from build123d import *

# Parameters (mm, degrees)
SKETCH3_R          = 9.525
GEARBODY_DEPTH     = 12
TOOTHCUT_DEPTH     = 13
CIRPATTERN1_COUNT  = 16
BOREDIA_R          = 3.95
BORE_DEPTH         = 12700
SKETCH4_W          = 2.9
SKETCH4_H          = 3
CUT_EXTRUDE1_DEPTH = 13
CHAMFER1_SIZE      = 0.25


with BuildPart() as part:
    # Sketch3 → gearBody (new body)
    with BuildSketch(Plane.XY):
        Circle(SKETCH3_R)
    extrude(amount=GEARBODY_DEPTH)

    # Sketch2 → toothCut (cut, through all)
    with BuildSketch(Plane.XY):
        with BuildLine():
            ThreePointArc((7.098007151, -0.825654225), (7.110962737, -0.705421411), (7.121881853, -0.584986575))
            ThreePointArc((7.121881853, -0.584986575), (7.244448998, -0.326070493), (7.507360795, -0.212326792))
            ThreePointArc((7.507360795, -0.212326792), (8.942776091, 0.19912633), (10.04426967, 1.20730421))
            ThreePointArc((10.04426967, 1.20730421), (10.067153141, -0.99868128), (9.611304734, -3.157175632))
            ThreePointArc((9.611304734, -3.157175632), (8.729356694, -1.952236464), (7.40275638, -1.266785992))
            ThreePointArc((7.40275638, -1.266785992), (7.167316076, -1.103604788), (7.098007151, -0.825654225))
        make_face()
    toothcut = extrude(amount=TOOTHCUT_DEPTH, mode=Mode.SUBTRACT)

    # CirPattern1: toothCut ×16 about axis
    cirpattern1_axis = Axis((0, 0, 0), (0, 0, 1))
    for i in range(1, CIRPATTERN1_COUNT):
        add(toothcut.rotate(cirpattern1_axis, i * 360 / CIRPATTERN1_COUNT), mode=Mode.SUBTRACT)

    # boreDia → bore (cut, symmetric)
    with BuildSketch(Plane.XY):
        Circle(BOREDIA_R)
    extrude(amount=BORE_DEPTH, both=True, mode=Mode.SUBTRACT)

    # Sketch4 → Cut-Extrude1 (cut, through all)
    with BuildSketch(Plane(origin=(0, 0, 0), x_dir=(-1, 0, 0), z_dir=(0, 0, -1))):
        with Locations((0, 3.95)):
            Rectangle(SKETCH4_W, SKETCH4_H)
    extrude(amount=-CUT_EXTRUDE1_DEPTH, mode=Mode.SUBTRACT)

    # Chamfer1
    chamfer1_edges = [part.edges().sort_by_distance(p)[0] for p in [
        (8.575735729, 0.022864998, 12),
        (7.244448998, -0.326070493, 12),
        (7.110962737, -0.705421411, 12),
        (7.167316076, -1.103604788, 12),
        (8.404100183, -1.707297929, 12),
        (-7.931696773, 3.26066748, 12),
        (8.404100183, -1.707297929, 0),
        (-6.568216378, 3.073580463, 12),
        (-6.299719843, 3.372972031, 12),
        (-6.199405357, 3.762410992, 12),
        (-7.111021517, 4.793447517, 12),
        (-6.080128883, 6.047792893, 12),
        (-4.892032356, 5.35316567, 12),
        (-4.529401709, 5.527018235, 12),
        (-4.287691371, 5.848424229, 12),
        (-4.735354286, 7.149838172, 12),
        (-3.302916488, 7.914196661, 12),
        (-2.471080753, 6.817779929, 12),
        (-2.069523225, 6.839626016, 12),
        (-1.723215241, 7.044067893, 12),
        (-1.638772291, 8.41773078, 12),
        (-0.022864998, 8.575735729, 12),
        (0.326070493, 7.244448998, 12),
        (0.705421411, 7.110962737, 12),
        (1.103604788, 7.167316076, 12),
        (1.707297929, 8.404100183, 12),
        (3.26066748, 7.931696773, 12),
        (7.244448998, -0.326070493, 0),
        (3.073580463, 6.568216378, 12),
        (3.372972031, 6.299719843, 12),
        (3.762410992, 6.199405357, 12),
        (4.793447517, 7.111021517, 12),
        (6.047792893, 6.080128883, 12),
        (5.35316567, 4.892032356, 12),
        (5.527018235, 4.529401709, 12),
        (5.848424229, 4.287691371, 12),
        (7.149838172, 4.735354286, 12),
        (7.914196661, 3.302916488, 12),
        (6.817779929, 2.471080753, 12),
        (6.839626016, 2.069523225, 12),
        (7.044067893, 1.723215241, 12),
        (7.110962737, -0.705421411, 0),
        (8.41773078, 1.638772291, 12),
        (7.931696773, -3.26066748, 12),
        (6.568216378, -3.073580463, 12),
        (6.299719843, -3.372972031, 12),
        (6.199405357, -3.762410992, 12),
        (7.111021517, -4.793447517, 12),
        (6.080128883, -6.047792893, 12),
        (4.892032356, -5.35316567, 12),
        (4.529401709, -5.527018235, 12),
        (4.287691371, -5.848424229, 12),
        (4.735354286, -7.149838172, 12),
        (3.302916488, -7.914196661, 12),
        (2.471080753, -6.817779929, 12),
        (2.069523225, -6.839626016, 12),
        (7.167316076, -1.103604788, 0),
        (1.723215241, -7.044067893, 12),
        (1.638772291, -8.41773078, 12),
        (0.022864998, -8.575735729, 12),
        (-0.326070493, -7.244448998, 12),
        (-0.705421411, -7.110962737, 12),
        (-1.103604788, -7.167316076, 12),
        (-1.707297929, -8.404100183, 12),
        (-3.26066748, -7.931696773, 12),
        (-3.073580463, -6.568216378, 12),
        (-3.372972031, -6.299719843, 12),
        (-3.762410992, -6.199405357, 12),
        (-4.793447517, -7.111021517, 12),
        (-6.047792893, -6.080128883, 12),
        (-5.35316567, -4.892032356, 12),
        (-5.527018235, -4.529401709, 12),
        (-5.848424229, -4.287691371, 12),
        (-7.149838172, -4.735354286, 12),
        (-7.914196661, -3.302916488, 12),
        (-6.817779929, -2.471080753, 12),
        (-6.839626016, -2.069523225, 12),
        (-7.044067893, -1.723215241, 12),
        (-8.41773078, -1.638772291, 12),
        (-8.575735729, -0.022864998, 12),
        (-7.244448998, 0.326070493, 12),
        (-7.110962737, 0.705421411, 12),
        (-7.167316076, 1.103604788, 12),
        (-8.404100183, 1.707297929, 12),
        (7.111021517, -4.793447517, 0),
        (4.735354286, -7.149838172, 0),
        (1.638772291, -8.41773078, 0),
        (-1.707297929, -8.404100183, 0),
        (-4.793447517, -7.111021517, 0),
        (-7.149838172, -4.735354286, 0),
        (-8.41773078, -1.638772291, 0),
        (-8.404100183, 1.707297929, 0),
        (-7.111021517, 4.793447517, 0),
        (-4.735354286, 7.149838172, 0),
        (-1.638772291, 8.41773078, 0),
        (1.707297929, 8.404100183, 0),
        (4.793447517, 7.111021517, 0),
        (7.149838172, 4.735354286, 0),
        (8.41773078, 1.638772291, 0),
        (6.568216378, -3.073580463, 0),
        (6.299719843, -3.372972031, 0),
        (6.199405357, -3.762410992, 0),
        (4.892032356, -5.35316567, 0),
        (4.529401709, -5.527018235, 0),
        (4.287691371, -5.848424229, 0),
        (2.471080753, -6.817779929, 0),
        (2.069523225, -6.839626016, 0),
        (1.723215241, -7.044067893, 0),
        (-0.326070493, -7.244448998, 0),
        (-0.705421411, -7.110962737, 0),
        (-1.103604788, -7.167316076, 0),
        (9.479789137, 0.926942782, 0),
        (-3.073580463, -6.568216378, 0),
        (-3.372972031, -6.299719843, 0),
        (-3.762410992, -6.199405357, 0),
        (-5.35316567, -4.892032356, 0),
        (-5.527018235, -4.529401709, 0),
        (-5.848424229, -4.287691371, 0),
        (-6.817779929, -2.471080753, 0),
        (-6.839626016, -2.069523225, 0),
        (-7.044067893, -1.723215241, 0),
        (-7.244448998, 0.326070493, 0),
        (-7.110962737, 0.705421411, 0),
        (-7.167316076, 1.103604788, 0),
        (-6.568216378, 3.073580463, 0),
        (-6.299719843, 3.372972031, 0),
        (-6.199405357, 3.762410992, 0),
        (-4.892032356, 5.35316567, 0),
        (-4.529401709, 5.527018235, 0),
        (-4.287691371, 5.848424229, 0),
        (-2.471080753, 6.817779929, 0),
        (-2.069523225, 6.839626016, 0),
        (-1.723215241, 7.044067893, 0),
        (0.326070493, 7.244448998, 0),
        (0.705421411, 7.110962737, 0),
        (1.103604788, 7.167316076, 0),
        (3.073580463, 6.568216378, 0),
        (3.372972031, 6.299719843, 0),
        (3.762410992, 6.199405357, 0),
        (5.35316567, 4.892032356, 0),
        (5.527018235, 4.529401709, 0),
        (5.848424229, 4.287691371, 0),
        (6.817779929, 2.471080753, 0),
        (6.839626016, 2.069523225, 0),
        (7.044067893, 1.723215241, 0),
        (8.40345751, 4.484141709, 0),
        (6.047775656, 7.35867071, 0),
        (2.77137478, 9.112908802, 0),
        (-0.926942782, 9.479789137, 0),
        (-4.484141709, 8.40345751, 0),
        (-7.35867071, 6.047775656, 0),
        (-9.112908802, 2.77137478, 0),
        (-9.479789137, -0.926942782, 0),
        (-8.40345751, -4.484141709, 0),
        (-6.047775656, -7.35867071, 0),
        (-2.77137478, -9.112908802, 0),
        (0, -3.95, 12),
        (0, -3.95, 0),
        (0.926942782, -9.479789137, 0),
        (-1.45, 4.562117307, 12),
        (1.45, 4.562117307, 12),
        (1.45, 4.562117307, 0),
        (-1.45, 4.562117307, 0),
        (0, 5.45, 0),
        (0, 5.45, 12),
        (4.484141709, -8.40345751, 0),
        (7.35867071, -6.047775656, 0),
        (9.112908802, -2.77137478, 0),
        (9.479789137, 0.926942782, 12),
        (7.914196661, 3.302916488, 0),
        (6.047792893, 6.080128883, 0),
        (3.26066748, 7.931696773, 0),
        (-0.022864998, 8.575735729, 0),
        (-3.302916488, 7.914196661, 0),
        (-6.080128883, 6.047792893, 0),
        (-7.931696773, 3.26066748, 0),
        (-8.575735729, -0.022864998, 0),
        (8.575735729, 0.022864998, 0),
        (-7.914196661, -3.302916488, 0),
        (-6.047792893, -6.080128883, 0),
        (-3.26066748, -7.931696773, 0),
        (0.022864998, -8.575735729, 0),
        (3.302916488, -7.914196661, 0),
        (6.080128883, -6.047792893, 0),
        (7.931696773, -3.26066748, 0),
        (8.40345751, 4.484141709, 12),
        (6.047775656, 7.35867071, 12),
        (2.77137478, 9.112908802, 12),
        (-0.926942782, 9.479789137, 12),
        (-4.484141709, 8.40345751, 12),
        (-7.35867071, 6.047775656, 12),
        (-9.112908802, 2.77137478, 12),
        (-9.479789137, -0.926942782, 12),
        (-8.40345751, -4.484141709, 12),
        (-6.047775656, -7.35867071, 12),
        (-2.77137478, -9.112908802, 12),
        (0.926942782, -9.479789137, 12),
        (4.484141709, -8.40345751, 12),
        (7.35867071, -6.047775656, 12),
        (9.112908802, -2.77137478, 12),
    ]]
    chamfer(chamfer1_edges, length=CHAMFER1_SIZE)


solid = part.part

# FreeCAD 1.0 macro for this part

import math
import FreeCAD as App
import Part
import Sketcher


def edges_at(feature, points):
    """Names of the edges that pass closest to the given points."""
    edges = feature.Shape.Edges
    near = lambda p: min(range(len(edges)), key=lambda i: edges[i].distToShape(Part.Vertex(*p))[0])
    return sorted({f"Edge{near(p) + 1}" for p in points})


def add_polygon(sketch, points):
    """Adds a closed chain of lines whose ends are joined by coincident constraints."""
    first, n = sketch.GeometryCount, len(points)
    for a, b in zip(points, points[1:] + points[:1]):
        sketch.addGeometry(Part.LineSegment(App.Vector(*a, 0), App.Vector(*b, 0)), False)
    for i in range(n):
        sketch.addConstraint(Sketcher.Constraint("Coincident", first + i, 2, first + (i + 1) % n, 1))

doc = App.newDocument("Part")
body = doc.addObject("PartDesign::Body", "Body")

sketch1 = body.newObject("Sketcher::SketchObject", "Sketch")
sketch1.AttachmentSupport = (doc.getObject("XY_Plane"), [""])
sketch1.MapMode = "FlatFace"
sketch1.addGeometry(Part.Circle(App.Vector(0, 0, 0), App.Vector(0, 0, 1), 10), False)
sketch1.addConstraint([
    Sketcher.Constraint("Coincident", 0, 3, -1, 1),
    Sketcher.Constraint("Diameter", 0, 19.05),
])
pad1 = body.newObject("PartDesign::Pad", "Pad")
pad1.Profile = sketch1
pad1.Length = 12

sketch2 = body.newObject("Sketcher::SketchObject", "Sketch001")
sketch2.AttachmentSupport = (doc.getObject("XY_Plane"), [""])
sketch2.MapMode = "FlatFace"
sketch2.addGeometry([
    Part.ArcOfCircle(Part.Circle(App.Vector(0, 0, 0), App.Vector(0, 0, 1), 7.15), math.radians(-6.63), math.radians(-4.7)),
    Part.ArcOfCircle(Part.Circle(App.Vector(7.5, -0.87, 0), App.Vector(0, 0, 1), 0.41), math.radians(173), math.radians(256)),
    Part.ArcOfCircle(Part.Circle(App.Vector(6.61, -4.43, 0), App.Vector(0, 0, 1), 3.26), math.radians(23), math.radians(76)),
    Part.ArcOfCircle(Part.Circle(App.Vector(0, 0, 0), App.Vector(0, 0, 1), 10.12), math.radians(-18), math.radians(7)),
    Part.ArcOfCircle(Part.Circle(App.Vector(7.35, 3.04, 0), App.Vector(0, 0, 1), 3.26), math.radians(-87), math.radians(-34)),
    Part.ArcOfCircle(Part.Circle(App.Vector(7.53, -0.62, 0), App.Vector(0, 0, 1), 0.41), math.radians(93), math.radians(175)),
], False)
sketch2.addConstraint([
    Sketcher.Constraint("Tangent", 0, 1, 1, 1),
    Sketcher.Constraint("Tangent", 1, 2, 2, 2),
    Sketcher.Constraint("Coincident", 2, 1, 3, 1),
    Sketcher.Constraint("Coincident", 3, 2, 4, 2),
    Sketcher.Constraint("Tangent", 4, 1, 5, 1),
    Sketcher.Constraint("Tangent", 5, 2, 0, 2),
    Sketcher.Constraint("Coincident", 0, 3, -1, 1),
    Sketcher.Constraint("Coincident", 3, 3, -1, 1),
    Sketcher.Constraint("Equal", 2, 4),
    Sketcher.Constraint("Equal", 1, 5),
    Sketcher.Constraint("Radius", 1, 0.4064),
    Sketcher.Constraint("Radius", 0, 7.145869),
    Sketcher.Constraint("Radius", 2, 3.260759),
    Sketcher.Constraint("DistanceX", -1, 1, 2, 3, 6.608998),
    Sketcher.Constraint("Radius", 3, 10.116567),
    Sketcher.Constraint("DistanceY", 0, 1, 5, 3, 0.207398),
    Sketcher.Constraint("DistanceY", 1, 2, 5, 2, 0.681799),
    Sketcher.Constraint("DistanceX", -1, 1, 3, 2, 10.04427),
])
pocket1 = body.newObject("PartDesign::Pocket", "Pocket")
pocket1.Profile = sketch2
pocket1.Type = "ThroughAll"
pocket1.Reversed = True
doc.recompute()

polarpattern = body.newObject("PartDesign::PolarPattern", "PolarPattern")
polarpattern.Originals = [pocket1]
polarpattern.Axis = (doc.getObject("Z_Axis"), [""])
polarpattern.Angle = 360
polarpattern.Occurrences = 16
body.Tip = polarpattern

sketch3 = body.newObject("Sketcher::SketchObject", "Sketch002")
sketch3.AttachmentSupport = (doc.getObject("XY_Plane"), [""])
sketch3.MapMode = "FlatFace"
sketch3.addGeometry(Part.Circle(App.Vector(0, 0, 0), App.Vector(0, 0, 1), 4), False)
sketch3.addConstraint([
    Sketcher.Constraint("Coincident", 0, 3, -1, 1),
    Sketcher.Constraint("Diameter", 0, 7.9),
])
pocket2 = body.newObject("PartDesign::Pocket", "Pocket001")
pocket2.Profile = sketch3
pocket2.Length = 25400
pocket2.Midplane = True

sketch4 = body.newObject("Sketcher::SketchObject", "Sketch003")
sketch4.AttachmentSupport = (doc.getObject("XY_Plane"), [""])
sketch4.MapMode = "FlatFace"
add_polygon(sketch4, [(1.4, 5.5), (1.4, 2.5), (-1.4, 2.5), (-1.4, 5.5)])
sketch4.addConstraint([
    Sketcher.Constraint("Vertical", 0),
    Sketcher.Constraint("Horizontal", 1),
    Sketcher.Constraint("Vertical", 2),
    Sketcher.Constraint("Horizontal", 3),
    Sketcher.Constraint("DistanceY", 0, 2, 0, 1, 3.0),
    Sketcher.Constraint("DistanceX", 1, 2, 1, 1, 2.9),
    Sketcher.Constraint("DistanceX", -1, 1, 0, 2, 1.45),
    Sketcher.Constraint("DistanceY", -1, 1, 0, 2, 2.45),
])
pocket3 = body.newObject("PartDesign::Pocket", "Pocket002")
pocket3.Profile = sketch4
pocket3.Type = "ThroughAll"
pocket3.Reversed = True
doc.recompute()

chamfer = body.newObject("PartDesign::Chamfer", "Chamfer")
chamfer.Base = (pocket3, edges_at(pocket3, [
    (8.576, 0.023, 12),
    (7.244, -0.326, 12),
    (7.111, -0.705, 12),
    (7.167, -1.104, 12),
    (8.404, -1.707, 12),
    (-7.932, 3.261, 12),
    (8.404, -1.707, 0),
    (-6.568, 3.074, 12),
    (-6.3, 3.373, 12),
    (-6.199, 3.762, 12),
    (-7.111, 4.793, 12),
    (-6.08, 6.048, 12),
    (-4.892, 5.353, 12),
    (-4.529, 5.527, 12),
    (-4.288, 5.848, 12),
    (-4.735, 7.15, 12),
    (-3.303, 7.914, 12),
    (-2.471, 6.818, 12),
    (-2.07, 6.84, 12),
    (-1.723, 7.044, 12),
    (-1.639, 8.418, 12),
    (-0.023, 8.576, 12),
    (0.326, 7.244, 12),
    (0.705, 7.111, 12),
    (1.104, 7.167, 12),
    (1.707, 8.404, 12),
    (3.261, 7.932, 12),
    (7.244, -0.326, 0),
    (3.074, 6.568, 12),
    (3.373, 6.3, 12),
    (3.762, 6.199, 12),
    (4.793, 7.111, 12),
    (6.048, 6.08, 12),
    (5.353, 4.892, 12),
    (5.527, 4.529, 12),
    (5.848, 4.288, 12),
    (7.15, 4.735, 12),
    (7.914, 3.303, 12),
    (6.818, 2.471, 12),
    (6.84, 2.07, 12),
    (7.044, 1.723, 12),
    (7.111, -0.705, 0),
    (8.418, 1.639, 12),
    (7.932, -3.261, 12),
    (6.568, -3.074, 12),
    (6.3, -3.373, 12),
    (6.199, -3.762, 12),
    (7.111, -4.793, 12),
    (6.08, -6.048, 12),
    (4.892, -5.353, 12),
    (4.529, -5.527, 12),
    (4.288, -5.848, 12),
    (4.735, -7.15, 12),
    (3.303, -7.914, 12),
    (2.471, -6.818, 12),
    (2.07, -6.84, 12),
    (7.167, -1.104, 0),
    (1.723, -7.044, 12),
    (1.639, -8.418, 12),
    (0.023, -8.576, 12),
    (-0.326, -7.244, 12),
    (-0.705, -7.111, 12),
    (-1.104, -7.167, 12),
    (-1.707, -8.404, 12),
    (-3.261, -7.932, 12),
    (-3.074, -6.568, 12),
    (-3.373, -6.3, 12),
    (-3.762, -6.199, 12),
    (-4.793, -7.111, 12),
    (-6.048, -6.08, 12),
    (-5.353, -4.892, 12),
    (-5.527, -4.529, 12),
    (-5.848, -4.288, 12),
    (-7.15, -4.735, 12),
    (-7.914, -3.303, 12),
    (-6.818, -2.471, 12),
    (-6.84, -2.07, 12),
    (-7.044, -1.723, 12),
    (-8.418, -1.639, 12),
    (-8.576, -0.023, 12),
    (-7.244, 0.326, 12),
    (-7.111, 0.705, 12),
    (-7.167, 1.104, 12),
    (-8.404, 1.707, 12),
    (7.111, -4.793, 0),
    (4.735, -7.15, 0),
    (1.639, -8.418, 0),
    (-1.707, -8.404, 0),
    (-4.793, -7.111, 0),
    (-7.15, -4.735, 0),
    (-8.418, -1.639, 0),
    (-8.404, 1.707, 0),
    (-7.111, 4.793, 0),
    (-4.735, 7.15, 0),
    (-1.639, 8.418, 0),
    (1.707, 8.404, 0),
    (4.793, 7.111, 0),
    (7.15, 4.735, 0),
    (8.418, 1.639, 0),
    (6.568, -3.074, 0),
    (6.3, -3.373, 0),
    (6.199, -3.762, 0),
    (4.892, -5.353, 0),
    (4.529, -5.527, 0),
    (4.288, -5.848, 0),
    (2.471, -6.818, 0),
    (2.07, -6.84, 0),
    (1.723, -7.044, 0),
    (-0.326, -7.244, 0),
    (-0.705, -7.111, 0),
    (-1.104, -7.167, 0),
    (9.48, 0.927, 0),
    (-3.074, -6.568, 0),
    (-3.373, -6.3, 0),
    (-3.762, -6.199, 0),
    (-5.353, -4.892, 0),
    (-5.527, -4.529, 0),
    (-5.848, -4.288, 0),
    (-6.818, -2.471, 0),
    (-6.84, -2.07, 0),
    (-7.044, -1.723, 0),
    (-7.244, 0.326, 0),
    (-7.111, 0.705, 0),
    (-7.167, 1.104, 0),
    (-6.568, 3.074, 0),
    (-6.3, 3.373, 0),
    (-6.199, 3.762, 0),
    (-4.892, 5.353, 0),
    (-4.529, 5.527, 0),
    (-4.288, 5.848, 0),
    (-2.471, 6.818, 0),
    (-2.07, 6.84, 0),
    (-1.723, 7.044, 0),
    (0.326, 7.244, 0),
    (0.705, 7.111, 0),
    (1.104, 7.167, 0),
    (3.074, 6.568, 0),
    (3.373, 6.3, 0),
    (3.762, 6.199, 0),
    (5.353, 4.892, 0),
    (5.527, 4.529, 0),
    (5.848, 4.288, 0),
    (6.818, 2.471, 0),
    (6.84, 2.07, 0),
    (7.044, 1.723, 0),
    (8.403, 4.484, 0),
    (6.048, 7.359, 0),
    (2.771, 9.113, 0),
    (-0.927, 9.48, 0),
    (-4.484, 8.403, 0),
    (-7.359, 6.048, 0),
    (-9.113, 2.771, 0),
    (-9.48, -0.927, 0),
    (-8.403, -4.484, 0),
    (-6.048, -7.359, 0),
    (-2.771, -9.113, 0),
    (0, -3.95, 12),
    (0, -3.95, 0),
    (0.927, -9.48, 0),
    (-1.45, 4.562, 12),
    (1.45, 4.562, 12),
    (1.45, 4.562, 0),
    (-1.45, 4.562, 0),
    (0, 5.45, 0),
    (0, 5.45, 12),
    (4.484, -8.403, 0),
    (7.359, -6.048, 0),
    (9.113, -2.771, 0),
    (9.48, 0.927, 12),
    (7.914, 3.303, 0),
    (6.048, 6.08, 0),
    (3.261, 7.932, 0),
    (-0.023, 8.576, 0),
    (-3.303, 7.914, 0),
    (-6.08, 6.048, 0),
    (-7.932, 3.261, 0),
    (-8.576, -0.023, 0),
    (8.576, 0.023, 0),
    (-7.914, -3.303, 0),
    (-6.048, -6.08, 0),
    (-3.261, -7.932, 0),
    (0.023, -8.576, 0),
    (3.303, -7.914, 0),
    (6.08, -6.048, 0),
    (7.932, -3.261, 0),
    (8.403, 4.484, 12),
    (6.048, 7.359, 12),
    (2.771, 9.113, 12),
    (-0.927, 9.48, 12),
    (-4.484, 8.403, 12),
    (-7.359, 6.048, 12),
    (-9.113, 2.771, 12),
    (-9.48, -0.927, 12),
    (-8.403, -4.484, 12),
    (-6.048, -7.359, 12),
    (-2.771, -9.113, 12),
    (0.927, -9.48, 12),
    (4.484, -8.403, 12),
    (7.359, -6.048, 12),
    (9.113, -2.771, 12),
]))
chamfer.Size = 0.25

doc.recompute()
